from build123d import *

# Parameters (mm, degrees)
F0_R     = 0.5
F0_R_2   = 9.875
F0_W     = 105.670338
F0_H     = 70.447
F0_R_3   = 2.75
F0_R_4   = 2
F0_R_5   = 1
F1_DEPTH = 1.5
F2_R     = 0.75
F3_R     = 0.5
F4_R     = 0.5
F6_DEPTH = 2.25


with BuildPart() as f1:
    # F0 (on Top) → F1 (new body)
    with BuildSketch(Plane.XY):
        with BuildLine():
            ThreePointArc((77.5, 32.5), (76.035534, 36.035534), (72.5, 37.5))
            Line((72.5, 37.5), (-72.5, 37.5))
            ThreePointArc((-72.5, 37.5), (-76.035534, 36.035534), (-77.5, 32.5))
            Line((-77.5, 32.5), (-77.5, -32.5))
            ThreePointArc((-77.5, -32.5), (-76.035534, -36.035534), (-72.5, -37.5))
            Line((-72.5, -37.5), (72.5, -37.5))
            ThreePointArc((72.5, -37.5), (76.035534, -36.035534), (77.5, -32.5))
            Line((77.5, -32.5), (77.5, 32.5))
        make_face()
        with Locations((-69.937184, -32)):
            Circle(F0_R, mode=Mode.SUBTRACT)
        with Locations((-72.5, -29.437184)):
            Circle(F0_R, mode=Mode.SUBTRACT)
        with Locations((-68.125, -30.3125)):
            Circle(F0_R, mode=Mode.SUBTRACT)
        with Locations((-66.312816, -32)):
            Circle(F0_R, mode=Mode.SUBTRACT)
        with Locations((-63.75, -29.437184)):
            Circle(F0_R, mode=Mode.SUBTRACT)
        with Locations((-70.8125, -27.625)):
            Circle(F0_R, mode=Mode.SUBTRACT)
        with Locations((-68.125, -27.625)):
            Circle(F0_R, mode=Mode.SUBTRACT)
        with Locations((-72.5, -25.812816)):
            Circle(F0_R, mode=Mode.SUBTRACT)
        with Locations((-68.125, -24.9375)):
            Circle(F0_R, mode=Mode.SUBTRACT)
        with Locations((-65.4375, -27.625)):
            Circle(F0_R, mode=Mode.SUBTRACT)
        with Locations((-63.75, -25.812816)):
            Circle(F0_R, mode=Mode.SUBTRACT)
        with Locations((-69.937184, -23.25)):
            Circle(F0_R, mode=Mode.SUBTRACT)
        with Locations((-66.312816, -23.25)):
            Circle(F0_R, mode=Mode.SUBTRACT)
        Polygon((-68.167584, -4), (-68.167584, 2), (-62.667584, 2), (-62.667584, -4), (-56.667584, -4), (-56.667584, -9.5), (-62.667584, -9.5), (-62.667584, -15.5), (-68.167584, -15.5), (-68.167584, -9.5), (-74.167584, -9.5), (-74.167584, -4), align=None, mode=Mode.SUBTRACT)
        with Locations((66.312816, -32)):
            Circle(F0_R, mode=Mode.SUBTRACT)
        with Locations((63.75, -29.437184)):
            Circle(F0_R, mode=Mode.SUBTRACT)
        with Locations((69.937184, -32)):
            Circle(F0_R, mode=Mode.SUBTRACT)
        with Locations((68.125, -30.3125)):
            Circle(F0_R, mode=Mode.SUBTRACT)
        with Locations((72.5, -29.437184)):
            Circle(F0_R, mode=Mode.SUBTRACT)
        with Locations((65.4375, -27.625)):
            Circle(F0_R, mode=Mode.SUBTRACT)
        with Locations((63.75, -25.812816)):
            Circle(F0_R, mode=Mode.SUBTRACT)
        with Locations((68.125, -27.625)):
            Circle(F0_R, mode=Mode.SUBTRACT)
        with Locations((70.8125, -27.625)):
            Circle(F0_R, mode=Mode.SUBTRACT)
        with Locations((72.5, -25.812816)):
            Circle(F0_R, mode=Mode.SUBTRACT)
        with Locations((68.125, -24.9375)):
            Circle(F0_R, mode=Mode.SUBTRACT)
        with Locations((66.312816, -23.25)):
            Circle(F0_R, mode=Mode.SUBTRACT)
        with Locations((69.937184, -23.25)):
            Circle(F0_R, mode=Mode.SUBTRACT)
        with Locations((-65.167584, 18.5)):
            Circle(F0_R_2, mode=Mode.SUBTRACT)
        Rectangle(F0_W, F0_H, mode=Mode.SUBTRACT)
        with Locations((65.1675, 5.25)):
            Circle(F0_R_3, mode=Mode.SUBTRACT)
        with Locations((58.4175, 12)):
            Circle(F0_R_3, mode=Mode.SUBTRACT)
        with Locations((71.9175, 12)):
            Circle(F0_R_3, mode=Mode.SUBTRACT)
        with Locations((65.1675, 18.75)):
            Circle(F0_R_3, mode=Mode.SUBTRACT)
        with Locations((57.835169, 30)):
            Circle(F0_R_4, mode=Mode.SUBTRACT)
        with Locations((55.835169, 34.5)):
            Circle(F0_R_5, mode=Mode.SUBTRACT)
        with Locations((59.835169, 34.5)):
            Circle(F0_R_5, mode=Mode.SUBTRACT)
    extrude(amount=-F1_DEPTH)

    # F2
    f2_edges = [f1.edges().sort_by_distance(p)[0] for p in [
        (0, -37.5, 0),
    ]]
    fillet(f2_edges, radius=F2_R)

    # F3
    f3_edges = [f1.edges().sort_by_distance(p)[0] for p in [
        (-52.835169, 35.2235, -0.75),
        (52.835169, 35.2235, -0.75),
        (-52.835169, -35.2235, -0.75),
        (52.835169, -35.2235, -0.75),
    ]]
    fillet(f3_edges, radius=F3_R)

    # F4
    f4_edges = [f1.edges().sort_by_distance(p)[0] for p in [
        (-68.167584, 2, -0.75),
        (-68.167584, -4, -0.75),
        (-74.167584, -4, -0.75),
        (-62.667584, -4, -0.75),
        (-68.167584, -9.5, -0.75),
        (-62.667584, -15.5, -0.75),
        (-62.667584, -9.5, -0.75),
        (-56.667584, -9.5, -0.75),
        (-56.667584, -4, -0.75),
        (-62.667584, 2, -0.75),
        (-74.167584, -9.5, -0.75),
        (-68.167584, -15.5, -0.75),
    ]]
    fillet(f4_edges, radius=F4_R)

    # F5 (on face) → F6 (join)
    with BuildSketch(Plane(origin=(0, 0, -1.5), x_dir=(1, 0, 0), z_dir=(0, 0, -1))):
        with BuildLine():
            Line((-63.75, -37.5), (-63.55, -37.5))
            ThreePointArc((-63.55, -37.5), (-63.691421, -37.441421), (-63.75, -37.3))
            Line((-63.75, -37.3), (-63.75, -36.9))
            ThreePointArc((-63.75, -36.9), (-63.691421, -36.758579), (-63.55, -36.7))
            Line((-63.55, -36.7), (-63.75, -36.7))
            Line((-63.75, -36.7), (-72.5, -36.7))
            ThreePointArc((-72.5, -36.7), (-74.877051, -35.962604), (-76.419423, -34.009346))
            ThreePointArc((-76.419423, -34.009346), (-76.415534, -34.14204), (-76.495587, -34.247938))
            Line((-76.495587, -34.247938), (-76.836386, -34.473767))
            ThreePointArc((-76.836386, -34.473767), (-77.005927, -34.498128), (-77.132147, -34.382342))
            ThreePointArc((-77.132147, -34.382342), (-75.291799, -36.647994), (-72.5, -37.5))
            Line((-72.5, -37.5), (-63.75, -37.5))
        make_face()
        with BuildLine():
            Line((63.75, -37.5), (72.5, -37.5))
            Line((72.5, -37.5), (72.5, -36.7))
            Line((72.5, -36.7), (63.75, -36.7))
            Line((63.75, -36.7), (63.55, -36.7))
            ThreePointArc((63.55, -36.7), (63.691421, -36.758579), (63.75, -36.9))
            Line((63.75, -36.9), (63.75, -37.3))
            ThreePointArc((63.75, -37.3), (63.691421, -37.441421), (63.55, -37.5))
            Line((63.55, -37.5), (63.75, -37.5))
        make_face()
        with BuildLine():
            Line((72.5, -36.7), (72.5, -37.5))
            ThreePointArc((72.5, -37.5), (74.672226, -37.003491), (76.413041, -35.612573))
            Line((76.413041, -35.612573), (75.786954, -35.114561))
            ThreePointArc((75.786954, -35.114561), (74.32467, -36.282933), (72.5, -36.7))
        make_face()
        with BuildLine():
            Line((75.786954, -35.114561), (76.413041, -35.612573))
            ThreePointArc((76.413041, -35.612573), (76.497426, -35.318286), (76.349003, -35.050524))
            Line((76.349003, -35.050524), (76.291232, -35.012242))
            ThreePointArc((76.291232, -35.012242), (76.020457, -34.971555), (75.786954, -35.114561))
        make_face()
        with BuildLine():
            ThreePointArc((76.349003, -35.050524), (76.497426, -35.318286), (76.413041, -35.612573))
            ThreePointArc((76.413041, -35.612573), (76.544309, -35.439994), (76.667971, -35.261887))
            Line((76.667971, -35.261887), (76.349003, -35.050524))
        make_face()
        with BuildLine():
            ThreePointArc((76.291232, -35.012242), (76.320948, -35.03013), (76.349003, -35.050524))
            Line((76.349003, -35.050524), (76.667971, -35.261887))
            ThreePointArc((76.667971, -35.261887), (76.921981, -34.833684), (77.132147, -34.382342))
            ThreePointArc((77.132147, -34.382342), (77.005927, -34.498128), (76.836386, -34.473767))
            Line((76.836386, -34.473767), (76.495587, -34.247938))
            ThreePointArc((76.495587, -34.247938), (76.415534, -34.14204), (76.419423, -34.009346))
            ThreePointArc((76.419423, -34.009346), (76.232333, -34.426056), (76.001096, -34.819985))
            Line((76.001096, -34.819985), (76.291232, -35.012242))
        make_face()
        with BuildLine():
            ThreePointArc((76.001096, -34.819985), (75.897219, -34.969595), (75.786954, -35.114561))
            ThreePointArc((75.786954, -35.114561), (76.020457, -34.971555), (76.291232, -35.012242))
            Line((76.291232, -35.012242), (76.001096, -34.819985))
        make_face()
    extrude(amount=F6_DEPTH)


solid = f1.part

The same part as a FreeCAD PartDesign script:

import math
import FreeCAD as App
import Part
import Sketcher
Q = App.Units.Quantity


def edges_at(feature, points):
    """Names of the edges that pass closest to the given points."""
    edges = feature.Shape.Edges
    near = lambda p: min(range(len(edges)), key=lambda i: edges[i].distToShape(Part.Vertex(*p))[0])
    return sorted({f"Edge{near(p) + 1}" for p in points})

doc = App.newDocument("Part")
body = doc.addObject("PartDesign::Body", "Body")

# Sketch on XY plane
sketch1 = doc.addObject("Sketcher::SketchObject", "Sketch")
body.addObject(sketch1)
sketch1.AttachmentSupport = (doc.XY_Plane, [""])
sketch1.MapMode = "FlatFace"
sketch1.addGeometry([
    Part.ArcOfCircle(Part.Circle(App.Vector(72.5, 32.5, 0), App.Vector(0, 0, 1), 5), math.radians(0), math.radians(90)),  # 0
    Part.LineSegment(App.Vector(72.5, 37.5, 0), App.Vector(-72.5, 37.5, 0)),  # 1
    Part.ArcOfCircle(Part.Circle(App.Vector(-72.5, 32.5, 0), App.Vector(0, 0, 1), 5), math.radians(90), math.radians(180)),  # 2
    Part.LineSegment(App.Vector(-77.5, 32.5, 0), App.Vector(-77.5, -32.5, 0)),  # 3
    Part.ArcOfCircle(Part.Circle(App.Vector(-72.5, -32.5, 0), App.Vector(0, 0, 1), 5), math.radians(180), math.radians(270)),  # 4
    Part.LineSegment(App.Vector(-72.5, -37.5, 0), App.Vector(72.5, -37.5, 0)),  # 5
    Part.ArcOfCircle(Part.Circle(App.Vector(72.5, -32.5, 0), App.Vector(0, 0, 1), 5), math.radians(-90), math.radians(0)),  # 6
    Part.LineSegment(App.Vector(77.5, -32.5, 0), App.Vector(77.5, 32.5, 0)),  # 7
    Part.Circle(App.Vector(-69.9, -32, 0), App.Vector(0, 0, 1), 0.5),  # 8
    Part.Circle(App.Vector(-66.3, -32, 0), App.Vector(0, 0, 1), 0.5),  # 9
    Part.Circle(App.Vector(-72.5, -29.4, 0), App.Vector(0, 0, 1), 0.5),  # 10
    Part.Circle(App.Vector(-68.1, -30.3, 0), App.Vector(0, 0, 1), 0.5),  # 11
    Part.Circle(App.Vector(-70.8, -27.6, 0), App.Vector(0, 0, 1), 0.5),  # 12
    Part.Circle(App.Vector(-68.1, -27.6, 0), App.Vector(0, 0, 1), 0.5),  # 13
    Part.Circle(App.Vector(-63.8, -29.4, 0), App.Vector(0, 0, 1), 0.5),  # 14
    Part.Circle(App.Vector(-65.4, -27.6, 0), App.Vector(0, 0, 1), 0.5),  # 15
    Part.Circle(App.Vector(-72.5, -25.8, 0), App.Vector(0, 0, 1), 0.5),  # 16
    Part.Circle(App.Vector(-68.1, -24.9, 0), App.Vector(0, 0, 1), 0.5),  # 17
    Part.Circle(App.Vector(-69.9, -23.2, 0), App.Vector(0, 0, 1), 0.5),  # 18
    Part.Circle(App.Vector(-66.3, -23.2, 0), App.Vector(0, 0, 1), 0.5),  # 19
    Part.Circle(App.Vector(-63.8, -25.8, 0), App.Vector(0, 0, 1), 0.5),  # 20
    Part.LineSegment(App.Vector(-74.2, -4, 0), App.Vector(-68.2, -4, 0)),  # 21
    Part.LineSegment(App.Vector(-68.2, -4, 0), App.Vector(-68.2, 2, 0)),  # 22
    Part.LineSegment(App.Vector(-68.2, 2, 0), App.Vector(-62.7, 2, 0)),  # 23
    Part.LineSegment(App.Vector(-62.7, 2, 0), App.Vector(-62.7, -4, 0)),  # 24
    Part.LineSegment(App.Vector(-62.7, -4, 0), App.Vector(-56.7, -4, 0)),  # 25
    Part.LineSegment(App.Vector(-56.7, -4, 0), App.Vector(-56.7, -9.5, 0)),  # 26
    Part.LineSegment(App.Vector(-56.7, -9.5, 0), App.Vector(-62.7, -9.5, 0)),  # 27
    Part.LineSegment(App.Vector(-62.7, -9.5, 0), App.Vector(-62.7, -15.5, 0)),  # 28
    Part.LineSegment(App.Vector(-62.7, -15.5, 0), App.Vector(-68.2, -15.5, 0)),  # 29
    Part.LineSegment(App.Vector(-68.2, -15.5, 0), App.Vector(-68.2, -9.5, 0)),  # 30
    Part.LineSegment(App.Vector(-68.2, -9.5, 0), App.Vector(-74.2, -9.5, 0)),  # 31
    Part.LineSegment(App.Vector(-74.2, -9.5, 0), App.Vector(-74.2, -4, 0)),  # 32
    Part.Circle(App.Vector(66.3, -32, 0), App.Vector(0, 0, 1), 0.5),  # 33
    Part.Circle(App.Vector(69.9, -32, 0), App.Vector(0, 0, 1), 0.5),  # 34
    Part.Circle(App.Vector(63.8, -29.4, 0), App.Vector(0, 0, 1), 0.5),  # 35
    Part.Circle(App.Vector(68.1, -30.3, 0), App.Vector(0, 0, 1), 0.5),  # 36
    Part.Circle(App.Vector(72.5, -29.4, 0), App.Vector(0, 0, 1), 0.5),  # 37
    Part.Circle(App.Vector(65.4, -27.6, 0), App.Vector(0, 0, 1), 0.5),  # 38
    Part.Circle(App.Vector(68.1, -27.6, 0), App.Vector(0, 0, 1), 0.5),  # 39
    Part.Circle(App.Vector(70.8, -27.6, 0), App.Vector(0, 0, 1), 0.5),  # 40
    Part.Circle(App.Vector(63.8, -25.8, 0), App.Vector(0, 0, 1), 0.5),  # 41
    Part.Circle(App.Vector(68.1, -24.9, 0), App.Vector(0, 0, 1), 0.5),  # 42
    Part.Circle(App.Vector(72.5, -25.8, 0), App.Vector(0, 0, 1), 0.5),  # 43
    Part.Circle(App.Vector(66.3, -23.2, 0), App.Vector(0, 0, 1), 0.5),  # 44
    Part.Circle(App.Vector(69.9, -23.2, 0), App.Vector(0, 0, 1), 0.5),  # 45
    Part.LineSegment(App.Vector(52.8, -35.2, 0), App.Vector(-52.8, -35.2, 0)),  # 46
    Part.LineSegment(App.Vector(-52.8, -35.2, 0), App.Vector(-52.8, 35.2, 0)),  # 47
    Part.LineSegment(App.Vector(-52.8, 35.2, 0), App.Vector(52.8, 35.2, 0)),  # 48
    Part.LineSegment(App.Vector(52.8, 35.2, 0), App.Vector(52.8, -35.2, 0)),  # 49
    Part.Circle(App.Vector(-65.2, 18.5, 0), App.Vector(0, 0, 1), 9.9),  # 50
    Part.Circle(App.Vector(65.2, 5.2, 0), App.Vector(0, 0, 1), 2.8),  # 51
    Part.Circle(App.Vector(58.4, 12, 0), App.Vector(0, 0, 1), 2.8),  # 52
    Part.Circle(App.Vector(71.9, 12, 0), App.Vector(0, 0, 1), 2.8),  # 53
    Part.Circle(App.Vector(65.2, 18.8, 0), App.Vector(0, 0, 1), 2.8),  # 54
    Part.Circle(App.Vector(55.8, 34.5, 0), App.Vector(0, 0, 1), 1),  # 55
    Part.Circle(App.Vector(57.8, 30, 0), App.Vector(0, 0, 1), 2),  # 56
    Part.Circle(App.Vector(59.8, 34.5, 0), App.Vector(0, 0, 1), 1),  # 57
], False)
sketch1.addConstraint([
    Sketcher.Constraint("Tangent", 0, 2, 1, 1),
    Sketcher.Constraint("Tangent", 1, 2, 2, 1),
    Sketcher.Constraint("Tangent", 2, 2, 3, 1),
    Sketcher.Constraint("Tangent", 3, 2, 4, 1),
    Sketcher.Constraint("Tangent", 4, 2, 5, 1),
    Sketcher.Constraint("Tangent", 5, 2, 6, 1),
    Sketcher.Constraint("Tangent", 6, 2, 7, 1),
    Sketcher.Constraint("Tangent", 7, 2, 0, 1),
    Sketcher.Constraint("Coincident", 21, 2, 22, 1),
    Sketcher.Constraint("Coincident", 22, 2, 23, 1),
    Sketcher.Constraint("Coincident", 23, 2, 24, 1),
    Sketcher.Constraint("Coincident", 24, 2, 25, 1),
    Sketcher.Constraint("Coincident", 25, 2, 26, 1),
    Sketcher.Constraint("Coincident", 26, 2, 27, 1),
    Sketcher.Constraint("Coincident", 27, 2, 28, 1),
    Sketcher.Constraint("Coincident", 28, 2, 29, 1),
    Sketcher.Constraint("Coincident", 29, 2, 30, 1),
    Sketcher.Constraint("Coincident", 30, 2, 31, 1),
    Sketcher.Constraint("Coincident", 31, 2, 32, 1),
    Sketcher.Constraint("Coincident", 32, 2, 21, 1),
    Sketcher.Constraint("Coincident", 46, 2, 47, 1),
    Sketcher.Constraint("Coincident", 47, 2, 48, 1),
    Sketcher.Constraint("Coincident", 48, 2, 49, 1),
    Sketcher.Constraint("Coincident", 49, 2, 46, 1),
    Sketcher.Constraint("Horizontal", 1),
    Sketcher.Constraint("Vertical", 3),
    Sketcher.Constraint("Horizontal", 5),
    Sketcher.Constraint("Vertical", 7),
    Sketcher.Constraint("Horizontal", 21),
    Sketcher.Constraint("Vertical", 22),
    Sketcher.Constraint("Horizontal", 23),
    Sketcher.Constraint("Vertical", 24),
    Sketcher.Constraint("Horizontal", 25),
    Sketcher.Constraint("Vertical", 26),
    Sketcher.Constraint("Horizontal", 27),
    Sketcher.Constraint("Vertical", 28),
    Sketcher.Constraint("Horizontal", 29),
    Sketcher.Constraint("Vertical", 30),
    Sketcher.Constraint("Horizontal", 31),
    Sketcher.Constraint("Vertical", 32),
    Sketcher.Constraint("Horizontal", 46),
    Sketcher.Constraint("Vertical", 47),
    Sketcher.Constraint("Horizontal", 48),
    Sketcher.Constraint("Vertical", 49),
    Sketcher.Constraint("Equal", 0, 2),
    Sketcher.Constraint("Equal", 2, 4),
    Sketcher.Constraint("Equal", 4, 6),
    Sketcher.Constraint("Equal", 8, 9),
    Sketcher.Constraint("Equal", 9, 10),
    Sketcher.Constraint("Equal", 10, 11),
    Sketcher.Constraint("Equal", 11, 12),
    Sketcher.Constraint("Equal", 12, 13),
    Sketcher.Constraint("Equal", 13, 14),
    Sketcher.Constraint("Equal", 14, 15),
    Sketcher.Constraint("Equal", 15, 16),
    Sketcher.Constraint("Equal", 16, 17),
    Sketcher.Constraint("Equal", 17, 18),
    Sketcher.Constraint("Equal", 18, 19),
    Sketcher.Constraint("Equal", 19, 20),
    Sketcher.Constraint("Equal", 20, 33),
    Sketcher.Constraint("Equal", 33, 34),
    Sketcher.Constraint("Equal", 34, 35),
    Sketcher.Constraint("Equal", 35, 36),
    Sketcher.Constraint("Equal", 36, 37),
    Sketcher.Constraint("Equal", 37, 38),
    Sketcher.Constraint("Equal", 38, 39),
    Sketcher.Constraint("Equal", 39, 40),
    Sketcher.Constraint("Equal", 40, 41),
    Sketcher.Constraint("Equal", 41, 42),
    Sketcher.Constraint("Equal", 42, 43),
    Sketcher.Constraint("Equal", 43, 44),
    Sketcher.Constraint("Equal", 44, 45),
    Sketcher.Constraint("Equal", 51, 52),
    Sketcher.Constraint("Equal", 52, 53),
    Sketcher.Constraint("Equal", 53, 54),
    Sketcher.Constraint("Equal", 55, 57),
    Sketcher.Constraint("Symmetric", 0, 3, 4, 3, -1, 1),
    Sketcher.Constraint("Symmetric", 46, 2, 48, 2, -1, 1),
    Sketcher.Constraint("Symmetric", 9, 3, 33, 3, -2),
    Sketcher.Constraint("Symmetric", 8, 3, 34, 3, -2),
    Sketcher.Constraint("Symmetric", 14, 3, 35, 3, -2),
    Sketcher.Constraint("Symmetric", 11, 3, 36, 3, -2),
    Sketcher.Constraint("Symmetric", 10, 3, 37, 3, -2),
    Sketcher.Constraint("Symmetric", 15, 3, 38, 3, -2),
    Sketcher.Constraint("Symmetric", 13, 3, 39, 3, -2),
    Sketcher.Constraint("Symmetric", 12, 3, 40, 3, -2),
    Sketcher.Constraint("Symmetric", 20, 3, 41, 3, -2),
    Sketcher.Constraint("Symmetric", 17, 3, 42, 3, -2),
    Sketcher.Constraint("Symmetric", 16, 3, 43, 3, -2),
    Sketcher.Constraint("Symmetric", 19, 3, 44, 3, -2),
    Sketcher.Constraint("Symmetric", 18, 3, 45, 3, -2),
    Sketcher.Constraint("Horizontal", 8, 3, 9, 3),
    Sketcher.Constraint("Horizontal", 12, 3, 13, 3),
    Sketcher.Constraint("Horizontal", 10, 3, 14, 3),
    Sketcher.Constraint("Horizontal", 13, 3, 15, 3),
    Sketcher.Constraint("Horizontal", 18, 3, 19, 3),
    Sketcher.Constraint("Horizontal", 16, 3, 20, 3),
    Sketcher.Constraint("Horizontal", 52, 3, 53, 3),
    Sketcher.Constraint("Horizontal", 55, 3, 57, 3),
    Sketcher.Constraint("Horizontal", 21, 2, 24, 2),
    Sketcher.Constraint("Horizontal", 27, 2, 30, 2),
    Sketcher.Constraint("Vertical", 4, 3, 10, 3),
    Sketcher.Constraint("Vertical", 11, 3, 13, 3),
    Sketcher.Constraint("Vertical", 10, 3, 16, 3),
    Sketcher.Constraint("Vertical", 13, 3, 17, 3),
    Sketcher.Constraint("Vertical", 8, 3, 18, 3),
    Sketcher.Constraint("Vertical", 9, 3, 19, 3),
    Sketcher.Constraint("Vertical", 14, 3, 20, 3),
    Sketcher.Constraint("Vertical", 51, 3, 54, 3),
    Sketcher.Constraint("Vertical", 24, 2, 27, 2),
    Sketcher.Constraint("Vertical", 22, 2, 29, 2),
    Sketcher.Constraint("Equal", 21, 25),
    Sketcher.Constraint("Equal", 31, 22),
    Sketcher.Constraint("Equal", 29, 26),
    Sketcher.Constraint("Equal", 24, 28),
    Sketcher.Constraint("Diameter", 8, Q("1 mm")),
    Sketcher.Constraint("Diameter", 55, Q("2 mm")),
    Sketcher.Constraint("Diameter", 56, Q("4 mm")),
    Sketcher.Constraint("Radius", 0, Q("5 mm")),
    Sketcher.Constraint("Diameter", 51, Q("5.5 mm")),
    Sketcher.Constraint("Diameter", 50, Q("19.75 mm")),
    Sketcher.Constraint("DistanceX", 1, 2, 1, 1, Q("145 mm")),
    Sketcher.Constraint("DistanceX", 21, 1, 21, 2, Q("6 mm")),
    Sketcher.Constraint("DistanceY", 3, 2, 3, 1, Q("65 mm")),
    Sketcher.Constraint("DistanceX", 23, 1, 23, 2, Q("5.5 mm")),
    Sketcher.Constraint("DistanceY", 8, 3, -1, 1, Q("32 mm")),
    Sketcher.Constraint("DistanceY", -1, 1, 52, 3, Q("12 mm")),
    Sketcher.Constraint("DistanceY", -1, 1, 56, 3, Q("30 mm")),
    Sketcher.Constraint("DistanceY", 21, 2, -1, 1, Q("4 mm")),
    Sketcher.Constraint("DistanceY", -1, 1, 50, 3, Q("18.5 mm")),
    Sketcher.Constraint("DistanceY", -1, 1, 55, 3, Q("34.5 mm")),
    Sketcher.Constraint("DistanceY", 47, 1, 47, 2, Q("70.447 mm")),
    Sketcher.Constraint("DistanceX", 14, 3, -1, 1, Q("63.75 mm")),
    Sketcher.Constraint("DistanceY", 18, 3, -1, 1, Q("23.25 mm")),
    Sketcher.Constraint("DistanceY", -1, 1, 51, 3, Q("5.25 mm")),
    Sketcher.Constraint("DistanceY", -1, 1, 54, 3, Q("18.75 mm")),
    Sketcher.Constraint("DistanceX", 11, 3, -1, 1, Q("68.125 mm")),
    Sketcher.Constraint("DistanceY", 12, 3, -1, 1, Q("27.625 mm")),
    Sketcher.Constraint("DistanceX", 46, 2, 46, 1, Q("105.670338 mm")),
    Sketcher.Constraint("DistanceY", 11, 3, -1, 1, Q("30.3125 mm")),
    Sketcher.Constraint("DistanceX", 12, 3, -1, 1, Q("70.8125 mm")),
    Sketcher.Constraint("DistanceX", 15, 3, -1, 1, Q("65.4375 mm")),
    Sketcher.Constraint("DistanceY", 17, 3, -1, 1, Q("24.9375 mm")),
    Sketcher.Constraint("DistanceX", -1, 1, 51, 3, Q("65.1675 mm")),
    Sketcher.Constraint("DistanceX", -1, 1, 52, 3, Q("58.4175 mm")),
    Sketcher.Constraint("DistanceX", -1, 1, 53, 3, Q("71.9175 mm")),
    Sketcher.Constraint("DistanceX", -1, 1, 55, 3, Q("55.835169 mm")),
    Sketcher.Constraint("DistanceX", -1, 1, 56, 3, Q("57.835169 mm")),
    Sketcher.Constraint("DistanceX", -1, 1, 57, 3, Q("59.835169 mm")),
    Sketcher.Constraint("DistanceX", 8, 3, -1, 1, Q("69.937184 mm")),
    Sketcher.Constraint("DistanceX", 9, 3, -1, 1, Q("66.312816 mm")),
    Sketcher.Constraint("DistanceY", 10, 3, -1, 1, Q("29.437184 mm")),
    Sketcher.Constraint("DistanceY", 16, 3, -1, 1, Q("25.812816 mm")),
    Sketcher.Constraint("DistanceX", 50, 3, -1, 1, Q("65.167584 mm")),
    Sketcher.Constraint("DistanceX", 21, 2, -1, 1, Q("68.167584 mm")),
])
pad1 = doc.addObject("PartDesign::Pad", "Pad")
body.addObject(pad1)
pad1.Profile = sketch1
pad1.Length = 1.5
pad1.Reversed = True
doc.recompute()

fillet = doc.addObject("PartDesign::Fillet", "Fillet")
body.addObject(fillet)
fillet.Base = (pad1, edges_at(pad1, [(0, -37.5, 0)]))
fillet.Radius = 0.75
doc.recompute()

fillet2 = doc.addObject("PartDesign::Fillet", "Fillet001")
body.addObject(fillet2)
fillet2.Base = (fillet, edges_at(fillet, [
    (-52.835, 35.224, -0.75),
    (52.835, 35.224, -0.75),
    (-52.835, -35.224, -0.75),
    (52.835, -35.224, -0.75),
]))
fillet2.Radius = 0.5
doc.recompute()

fillet3 = doc.addObject("PartDesign::Fillet", "Fillet002")
body.addObject(fillet3)
fillet3.Base = (fillet2, edges_at(fillet2, [
    (-68.168, 2, -0.75),
    (-68.168, -4, -0.75),
    (-74.168, -4, -0.75),
    (-62.668, -4, -0.75),
    (-68.168, -9.5, -0.75),
    (-62.668, -15.5, -0.75),
    (-62.668, -9.5, -0.75),
    (-56.668, -9.5, -0.75),
    (-56.668, -4, -0.75),
    (-62.668, 2, -0.75),
    (-74.168, -9.5, -0.75),
    (-68.168, -15.5, -0.75),
]))
fillet3.Radius = 0.5

# Sketch on XY plane
sketch2 = doc.addObject("Sketcher::SketchObject", "Sketch001")
body.addObject(sketch2)
sketch2.AttachmentSupport = (doc.XY_Plane, [""])
sketch2.MapMode = "FlatFace"
sketch2.AttachmentOffset = App.Placement(App.Vector(0, 0, -1.5), App.Rotation())
sketch2.addGeometry([
    Part.ArcOfCircle(Part.Circle(App.Vector(-63.55, 37.3, 0), App.Vector(0, 0, 1), 0.2), math.radians(90), math.radians(180)),  # 0
    Part.LineSegment(App.Vector(-63.75, 37.3, 0), App.Vector(-63.75, 36.9, 0)),  # 1
    Part.ArcOfCircle(Part.Circle(App.Vector(-63.55, 36.9, 0), App.Vector(0, 0, 1), 0.2), math.radians(-180), math.radians(-90)),  # 2
    Part.LineSegment(App.Vector(-63.55, 36.7, 0), App.Vector(-72.5, 36.7, 0)),  # 3
    Part.ArcOfCircle(Part.Circle(App.Vector(-72.5, 32.5, 0), App.Vector(0, 0, 1), 4.2), math.radians(90), math.radians(159)),  # 4
    Part.ArcOfCircle(Part.Circle(App.Vector(-76.61, 34.08, 0), App.Vector(0, 0, 1), 0.2), math.radians(-21), math.radians(56)),  # 5
    Part.LineSegment(App.Vector(-76.5, 34.25, 0), App.Vector(-76.84, 34.47, 0)),  # 6
    Part.ArcOfCircle(Part.Circle(App.Vector(-76.95, 34.31, 0), App.Vector(0, 0, 1), 0.2), math.radians(56), math.radians(158)),  # 7
    Part.ArcOfCircle(Part.Circle(App.Vector(-72.5, 32.5, 0), App.Vector(0, 0, 1), 5), math.radians(90), math.radians(158)),  # 8
    Part.LineSegment(App.Vector(-72.5, 37.5, 0), App.Vector(-63.55, 37.5, 0)),  # 9
    Part.ArcOfCircle(Part.Circle(App.Vector(72.5, 32.5, 0), App.Vector(0, 0, 1), 4.2), math.radians(21.06), math.radians(33.53)),  # 10
    Part.ArcOfCircle(Part.Circle(App.Vector(72.5, 32.5, 0), App.Vector(0, 0, 1), 4.2), math.radians(33.53), math.radians(38.5)),  # 11
    Part.ArcOfCircle(Part.Circle(App.Vector(72.5, 32.5, 0), App.Vector(0, 0, 1), 4.2), math.radians(38), math.radians(90)),  # 12
    Part.LineSegment(App.Vector(72.5, 36.7, 0), App.Vector(63.55, 36.7, 0)),  # 13
    Part.ArcOfCircle(Part.Circle(App.Vector(63.55, 36.9, 0), App.Vector(0, 0, 1), 0.2), math.radians(-90), math.radians(0)),  # 14
    Part.LineSegment(App.Vector(63.75, 36.9, 0), App.Vector(63.75, 37.3, 0)),  # 15
    Part.ArcOfCircle(Part.Circle(App.Vector(63.55, 37.3, 0), App.Vector(0, 0, 1), 0.2), math.radians(0), math.radians(90)),  # 16
    Part.LineSegment(App.Vector(63.55, 37.5, 0), App.Vector(72.5, 37.5, 0)),  # 17
    Part.ArcOfCircle(Part.Circle(App.Vector(72.5, 32.5, 0), App.Vector(0, 0, 1), 5), math.radians(39), math.radians(90)),  # 18
    Part.ArcOfCircle(Part.Circle(App.Vector(72.5, 32.5, 0), App.Vector(0, 0, 1), 5), math.radians(33.53), math.radians(38.5)),  # 19
    Part.ArcOfCircle(Part.Circle(App.Vector(72.5, 32.5, 0), App.Vector(0, 0, 1), 5), math.radians(22.12), math.radians(33.53)),  # 20
    Part.ArcOfCircle(Part.Circle(App.Vector(76.95, 34.31, 0), App.Vector(0, 0, 1), 0.2), math.radians(22), math.radians(124)),  # 21
    Part.LineSegment(App.Vector(76.84, 34.47, 0), App.Vector(76.5, 34.25, 0)),  # 22
    Part.ArcOfCircle(Part.Circle(App.Vector(76.61, 34.08, 0), App.Vector(0, 0, 1), 0.2), math.radians(124), math.radians(201)),  # 23
    Part.LineSegment(App.Vector(76.35, 35.05, 0), App.Vector(76.29, 35.01, 0)),  # 24
    Part.ArcOfCircle(Part.Circle(App.Vector(76.1, 35.36, 0), App.Vector(0, 0, 1), 0.4), math.radians(-61.44), math.radians(-51.5)),  # 25
], False)
sketch2.addConstraint([
    Sketcher.Constraint("Coincident", 0, 2, 1, 1),
    Sketcher.Constraint("Coincident", 1, 2, 2, 1),
    Sketcher.Constraint("Coincident", 2, 2, 3, 1),
    Sketcher.Constraint("Tangent", 3, 2, 4, 1),
    Sketcher.Constraint("Coincident", 4, 2, 5, 1),
    Sketcher.Constraint("Coincident", 5, 2, 6, 1),
    Sketcher.Constraint("Coincident", 6, 2, 7, 1),
    Sketcher.Constraint("Coincident", 7, 2, 8, 2),
    Sketcher.Constraint("Tangent", 8, 1, 9, 1),
    Sketcher.Constraint("Coincident", 9, 2, 0, 1),
    Sketcher.Constraint("Coincident", 10, 2, 11, 1),
    Sketcher.Constraint("Tangent", 11, 2, 12, 1),
    Sketcher.Constraint("Tangent", 12, 2, 13, 1),
    Sketcher.Constraint("Coincident", 13, 2, 14, 1),
    Sketcher.Constraint("Coincident", 14, 2, 15, 1),
    Sketcher.Constraint("Coincident", 15, 2, 16, 1),
    Sketcher.Constraint("Coincident", 16, 2, 17, 1),
    Sketcher.Constraint("Tangent", 17, 2, 18, 2),
    Sketcher.Constraint("Tangent", 18, 1, 19, 2),
    Sketcher.Constraint("Coincident", 19, 1, 20, 2),
    Sketcher.Constraint("Coincident", 20, 1, 21, 1),
    Sketcher.Constraint("Coincident", 21, 2, 22, 1),
    Sketcher.Constraint("Coincident", 22, 2, 23, 1),
    Sketcher.Constraint("Coincident", 23, 2, 10, 1),
    Sketcher.Constraint("Coincident", 24, 1, 25, 2),
    Sketcher.Constraint("Coincident", 25, 1, 24, 2),
    Sketcher.Constraint("Vertical", 1),
    Sketcher.Constraint("Horizontal", 3),
    Sketcher.Constraint("Horizontal", 9),
    Sketcher.Constraint("Horizontal", 13),
    Sketcher.Constraint("Vertical", 15),
    Sketcher.Constraint("Horizontal", 17),
    Sketcher.Constraint("Coincident", 8, 3, 4, 3),
    Sketcher.Constraint("Coincident", 18, 3, 12, 3),
    Sketcher.Constraint("Equal", 0, 2),
    Sketcher.Constraint("Equal", 5, 7),
    Sketcher.Constraint("Equal", 2, 14),
    Sketcher.Constraint("Equal", 14, 16),
    Sketcher.Constraint("Equal", 8, 18),
    Sketcher.Constraint("Equal", 7, 21),
    Sketcher.Constraint("Equal", 21, 23),
    Sketcher.Constraint("Symmetric", 4, 3, 12, 3, -2),
    Sketcher.Constraint("Symmetric", 2, 3, 14, 3, -2),
    Sketcher.Constraint("Symmetric", 7, 3, 21, 3, -2),
    Sketcher.Constraint("Symmetric", 5, 3, 23, 3, -2),
    Sketcher.Constraint("Horizontal", 16, 3, 0, 2),
    Sketcher.Constraint("Horizontal", 14, 3, 1, 2),
    Sketcher.Constraint("Horizontal", 1, 2, 14, 2),
    Sketcher.Constraint("Horizontal", 0, 2, 15, 2),
    Sketcher.Constraint("Horizontal", 7, 2, 20, 1),
    Sketcher.Constraint("Horizontal", 6, 2, 21, 2),
    Sketcher.Constraint("Horizontal", 5, 2, 22, 2),
    Sketcher.Constraint("Horizontal", 4, 2, 23, 2),
    Sketcher.Constraint("Vertical", 0, 3, 2, 2),
    Sketcher.Constraint("Vertical", 2, 2, 9, 2),
    Sketcher.Constraint("Vertical", 16, 3, 13, 2),
    Sketcher.Constraint("Vertical", 13, 2, 16, 2),
    Sketcher.Constraint("Radius", 8, Q("5.000001 mm")),
    Sketcher.Constraint("Radius", 0, Q("0.200001 mm")),
    Sketcher.Constraint("Radius", 4, Q("4.200002 mm")),
    Sketcher.Constraint("Radius", 7, Q("0.199999 mm")),
    Sketcher.Constraint("DistanceX", 8, 3, 12, 3, Q("145.000001 mm")),
    Sketcher.Constraint("DistanceX", 3, 2, 3, 1, Q("8.95 mm")),
    Sketcher.Constraint("DistanceY", -1, 1, 0, 3, Q("37.299999 mm")),
    Sketcher.Constraint("Radius", 10, Q("4.20003 mm")),
    Sketcher.Constraint("Radius", 11, Q("4.200419 mm")),
    Sketcher.Constraint("Radius", 25, Q("0.400138 mm")),
    Sketcher.Constraint("Radius", 19, Q("5.000138 mm")),
    Sketcher.Constraint("Radius", 20, Q("5.000054 mm")),
    Sketcher.Constraint("DistanceX", 6, 2, 5, 2, Q("0.340799 mm")),
    Sketcher.Constraint("Distance", 6, Q("0.408831 mm")),
    Sketcher.Constraint("DistanceX", 5, 3, -1, 1, Q("76.60606 mm")),
    Sketcher.Constraint("DistanceX", -1, 1, 25, 3, Q("76.099919 mm")),
    Sketcher.Constraint("DistanceY", -1, 1, 25, 3, Q("35.363682 mm")),
    Sketcher.Constraint("DistanceY", -1, 1, 5, 2, Q("34.247938 mm")),
    Sketcher.Constraint("DistanceY", -1, 1, 11, 2, Q("35.114561 mm")),
    Sketcher.Constraint("DistanceX", -1, 1, 18, 1, Q("76.413041 mm")),
    Sketcher.Constraint("DistanceX", -1, 1, 19, 1, Q("76.667971 mm")),
    Sketcher.Constraint("DistanceY", -1, 1, 25, 1, Q("35.012242 mm")),
    Sketcher.Constraint("DistanceX", 7, 3, 4, 2, Q("0.527439 mm")),
    Sketcher.Constraint("DistanceY", 7, 3, 7, 2, Q("0.075292 mm")),
    Sketcher.Constraint("DistanceY", 12, 3, 10, 2, Q("2.31998 mm")),
    Sketcher.Constraint("DistanceY", 10, 2, 24, 1, Q("0.230539 mm")),
])
pad2 = doc.addObject("PartDesign::Pad", "Pad001")
body.addObject(pad2)
pad2.Profile = sketch2
pad2.Length = 2.25
pad2.Reversed = True

doc.recompute()
